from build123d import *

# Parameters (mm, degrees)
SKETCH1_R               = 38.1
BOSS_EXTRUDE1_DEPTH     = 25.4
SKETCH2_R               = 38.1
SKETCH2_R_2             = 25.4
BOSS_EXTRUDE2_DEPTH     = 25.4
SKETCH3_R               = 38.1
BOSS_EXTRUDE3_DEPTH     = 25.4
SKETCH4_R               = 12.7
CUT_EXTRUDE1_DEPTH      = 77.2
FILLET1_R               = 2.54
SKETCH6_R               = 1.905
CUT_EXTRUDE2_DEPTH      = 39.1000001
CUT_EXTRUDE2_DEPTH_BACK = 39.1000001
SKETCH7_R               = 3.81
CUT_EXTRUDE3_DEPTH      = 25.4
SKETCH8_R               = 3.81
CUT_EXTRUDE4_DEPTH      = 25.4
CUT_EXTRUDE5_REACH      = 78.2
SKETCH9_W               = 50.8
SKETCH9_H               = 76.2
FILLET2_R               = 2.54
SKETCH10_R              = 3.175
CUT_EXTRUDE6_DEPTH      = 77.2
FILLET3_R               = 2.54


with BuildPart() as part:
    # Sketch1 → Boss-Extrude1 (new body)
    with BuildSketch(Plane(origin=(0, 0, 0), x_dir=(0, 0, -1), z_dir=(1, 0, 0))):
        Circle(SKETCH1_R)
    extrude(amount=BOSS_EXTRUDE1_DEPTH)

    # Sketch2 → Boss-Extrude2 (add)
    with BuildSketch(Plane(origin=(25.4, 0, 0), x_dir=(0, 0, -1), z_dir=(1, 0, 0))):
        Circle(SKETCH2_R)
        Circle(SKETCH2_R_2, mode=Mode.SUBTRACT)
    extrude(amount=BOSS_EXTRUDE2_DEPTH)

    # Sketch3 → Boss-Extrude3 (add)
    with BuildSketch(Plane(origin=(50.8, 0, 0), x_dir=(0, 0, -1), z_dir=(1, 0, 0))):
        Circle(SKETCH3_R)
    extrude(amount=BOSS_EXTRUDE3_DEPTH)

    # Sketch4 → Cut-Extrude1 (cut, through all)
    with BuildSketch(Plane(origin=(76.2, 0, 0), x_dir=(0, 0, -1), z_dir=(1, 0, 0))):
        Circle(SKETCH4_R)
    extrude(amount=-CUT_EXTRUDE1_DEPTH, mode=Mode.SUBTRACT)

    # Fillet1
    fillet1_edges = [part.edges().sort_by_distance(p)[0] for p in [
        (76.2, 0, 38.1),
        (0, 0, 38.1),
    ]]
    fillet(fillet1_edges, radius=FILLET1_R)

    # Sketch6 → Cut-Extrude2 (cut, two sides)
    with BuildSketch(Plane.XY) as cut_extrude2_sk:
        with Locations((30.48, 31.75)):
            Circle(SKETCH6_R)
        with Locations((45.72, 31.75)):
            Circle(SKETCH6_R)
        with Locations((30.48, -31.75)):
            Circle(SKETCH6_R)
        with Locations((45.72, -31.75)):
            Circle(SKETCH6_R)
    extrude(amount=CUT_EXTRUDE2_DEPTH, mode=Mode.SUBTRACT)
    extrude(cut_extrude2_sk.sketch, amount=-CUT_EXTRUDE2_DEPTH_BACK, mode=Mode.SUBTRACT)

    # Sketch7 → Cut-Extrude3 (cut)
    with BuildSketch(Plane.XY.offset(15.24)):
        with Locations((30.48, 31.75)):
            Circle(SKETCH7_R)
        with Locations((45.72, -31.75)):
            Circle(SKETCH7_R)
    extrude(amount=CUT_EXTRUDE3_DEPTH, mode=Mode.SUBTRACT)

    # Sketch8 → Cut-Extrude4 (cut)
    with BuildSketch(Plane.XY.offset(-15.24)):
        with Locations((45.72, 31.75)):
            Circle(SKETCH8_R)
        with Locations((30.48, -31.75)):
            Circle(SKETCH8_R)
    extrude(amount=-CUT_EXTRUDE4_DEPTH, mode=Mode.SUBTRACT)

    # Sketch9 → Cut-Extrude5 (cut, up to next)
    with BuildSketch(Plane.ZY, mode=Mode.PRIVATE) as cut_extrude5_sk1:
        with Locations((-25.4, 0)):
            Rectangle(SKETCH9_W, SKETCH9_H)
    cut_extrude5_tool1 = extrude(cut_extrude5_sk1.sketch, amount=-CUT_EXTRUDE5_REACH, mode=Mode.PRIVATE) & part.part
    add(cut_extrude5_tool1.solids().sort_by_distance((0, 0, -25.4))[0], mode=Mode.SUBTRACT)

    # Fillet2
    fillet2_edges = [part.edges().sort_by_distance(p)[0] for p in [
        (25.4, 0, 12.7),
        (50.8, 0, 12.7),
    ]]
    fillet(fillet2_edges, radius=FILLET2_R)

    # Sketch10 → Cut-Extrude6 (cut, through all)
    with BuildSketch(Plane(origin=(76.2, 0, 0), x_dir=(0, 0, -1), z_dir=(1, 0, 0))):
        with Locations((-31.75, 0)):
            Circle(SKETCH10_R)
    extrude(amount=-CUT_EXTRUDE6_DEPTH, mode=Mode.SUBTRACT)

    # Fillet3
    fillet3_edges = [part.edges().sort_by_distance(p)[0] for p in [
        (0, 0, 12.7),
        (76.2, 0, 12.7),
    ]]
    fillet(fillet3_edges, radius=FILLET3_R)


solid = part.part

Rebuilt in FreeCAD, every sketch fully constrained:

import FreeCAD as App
import Part
import Sketcher
from FreeCAD import Vector
Q = App.Units.Quantity


def edges_at(feature, points):
    """Names of the edges that pass closest to the given points."""
    edges = feature.Shape.Edges
    near = lambda p: min(range(len(edges)), key=lambda i: edges[i].distToShape(Part.Vertex(*p))[0])
    return sorted({f"Edge{near(p) + 1}" for p in points})

doc = App.newDocument("Part")
body = doc.addObject("PartDesign::Body", "Body")

sketch1 = doc.addObject("Sketcher::SketchObject", "Sketch")
body.addObject(sketch1)
sketch1.AttachmentSupport = (doc.YZ_Plane, [""])
sketch1.MapMode = "FlatFace"
sketch1.addGeometry(Part.Circle(Vector(0, 0, 0), Vector(0, 0, 1), 38), False)
sketch1.addConstraint([
    Sketcher.Constraint("Coincident", 0, 3, -1, 1),
    Sketcher.Constraint("Diameter", 0, Q("3 in")),
])
pad1 = doc.addObject("PartDesign::Pad", "Pad")
body.addObject(pad1)
pad1.Profile = sketch1
pad1.Length = Q("1 in")

sketch2 = doc.addObject("Sketcher::SketchObject", "Sketch001")
body.addObject(sketch2)
sketch2.AttachmentSupport = (doc.YZ_Plane, [""])
sketch2.MapMode = "FlatFace"
sketch2.AttachmentOffset = App.Placement(Vector(0, 0, 1 * 25.4), App.Rotation())
sketch2.addGeometry([
    Part.Circle(Vector(0, 0, 0), Vector(0, 0, 1), 38),
    Part.Circle(Vector(0, 0, 0), Vector(0, 0, 1), 25),
], False)
sketch2.addConstraint([
    Sketcher.Constraint("Coincident", 0, 3, -1, 1),
    Sketcher.Constraint("Coincident", 1, 3, -1, 1),
    Sketcher.Constraint("Diameter", 0, Q("3 in")),
    Sketcher.Constraint("Diameter", 1, Q("2 in")),
])
pad2 = doc.addObject("PartDesign::Pad", "Pad001")
body.addObject(pad2)
pad2.Profile = sketch2
pad2.Length = Q("1 in")

sketch3 = doc.addObject("Sketcher::SketchObject", "Sketch002")
body.addObject(sketch3)
sketch3.AttachmentSupport = (doc.YZ_Plane, [""])
sketch3.MapMode = "FlatFace"
sketch3.AttachmentOffset = App.Placement(Vector(0, 0, 2 * 25.4), App.Rotation())
sketch3.addGeometry(Part.Circle(Vector(0, 0, 0), Vector(0, 0, 1), 38), False)
sketch3.addConstraint([
    Sketcher.Constraint("Coincident", 0, 3, -1, 1),
    Sketcher.Constraint("Diameter", 0, Q("3 in")),
])
pad3 = doc.addObject("PartDesign::Pad", "Pad002")
body.addObject(pad3)
pad3.Profile = sketch3
pad3.Length = Q("1 in")

sketch4 = doc.addObject("Sketcher::SketchObject", "Sketch003")
body.addObject(sketch4)
sketch4.AttachmentSupport = (doc.YZ_Plane, [""])
sketch4.MapMode = "FlatFace"
sketch4.AttachmentOffset = App.Placement(Vector(0, 0, 3 * 25.4), App.Rotation())
sketch4.addGeometry(Part.Circle(Vector(0, 0, 0), Vector(0, 0, 1), 13), False)
sketch4.addConstraint([
    Sketcher.Constraint("Coincident", 0, 3, -1, 1),
    Sketcher.Constraint("Diameter", 0, Q("1 in")),
])
pocket1 = doc.addObject("PartDesign::Pocket", "Pocket")
body.addObject(pocket1)
pocket1.Profile = sketch4
pocket1.Type = "ThroughAll"
doc.recompute()

fillet = doc.addObject("PartDesign::Fillet", "Fillet")
body.addObject(fillet)
fillet.Base = (pocket1, edges_at(pocket1, [(76.2, 0, 38.1), (0, 0, 38.1)]))
fillet.Radius = Q("0.1 in")

sketch5 = doc.addObject("Sketcher::SketchObject", "Sketch004")
body.addObject(sketch5)
sketch5.AttachmentSupport = (doc.XY_Plane, [""])
sketch5.MapMode = "FlatFace"
sketch5.addGeometry([
    Part.Circle(Vector(30.5, 31.8, 0), Vector(0, 0, 1), 1.9),
    Part.Circle(Vector(45.7, 31.8, 0), Vector(0, 0, 1), 1.9),
    Part.Circle(Vector(30.5, -31.8, 0), Vector(0, 0, 1), 1.9),
    Part.Circle(Vector(45.7, -31.8, 0), Vector(0, 0, 1), 1.9),
], False)
sketch5.addConstraint([
    Sketcher.Constraint("Equal", 0, 1),
    Sketcher.Constraint("Equal", 1, 2),
    Sketcher.Constraint("Equal", 2, 3),
    Sketcher.Constraint("Symmetric", 0, 3, 2, 3, -1),
    Sketcher.Constraint("Symmetric", 1, 3, 3, 3, -1),
    Sketcher.Constraint("Horizontal", 0, 3, 1, 3),
    Sketcher.Constraint("Diameter", 0, Q("0.15 in")),
    Sketcher.Constraint("DistanceX", -1, 1, 0, 3, Q("1.2 in")),
    Sketcher.Constraint("DistanceX", -1, 1, 1, 3, Q("1.8 in")),
    Sketcher.Constraint("DistanceY", 2, 3, 0, 3, Q("2.5 in")),
])
pocket2 = doc.addObject("PartDesign::Pocket", "Pocket001")
body.addObject(pocket2)
pocket2.Profile = sketch5
pocket2.Type = "ThroughAll"
pocket2.Midplane = True

sketch6 = doc.addObject("Sketcher::SketchObject", "Sketch005")
body.addObject(sketch6)
sketch6.AttachmentSupport = (doc.XY_Plane, [""])
sketch6.MapMode = "FlatFace"
sketch6.AttachmentOffset = App.Placement(Vector(0, 0, 0.6 * 25.4), App.Rotation())
sketch6.addGeometry([
    Part.Circle(Vector(30.5, 31.8, 0), Vector(0, 0, 1), 3.8),
    Part.Circle(Vector(45.7, -31.8, 0), Vector(0, 0, 1), 3.8),
], False)
sketch6.addConstraint([
    Sketcher.Constraint("Equal", 0, 1),
    Sketcher.Constraint("Diameter", 0, Q("0.3 in")),
    Sketcher.Constraint("DistanceX", -1, 1, 0, 3, Q("1.2 in")),
    Sketcher.Constraint("DistanceX", -1, 1, 1, 3, Q("1.8 in")),
    Sketcher.Constraint("DistanceY", 1, 3, 0, 3, Q("2.5 in")),
    Sketcher.Constraint("DistanceY", -1, 1, 0, 3, Q("1.25 in")),
])
pocket3 = doc.addObject("PartDesign::Pocket", "Pocket002")
body.addObject(pocket3)
pocket3.Profile = sketch6
pocket3.Length = Q("1 in")
pocket3.Reversed = True

sketch7 = doc.addObject("Sketcher::SketchObject", "Sketch006")
body.addObject(sketch7)
sketch7.AttachmentSupport = (doc.XY_Plane, [""])
sketch7.MapMode = "FlatFace"
sketch7.AttachmentOffset = App.Placement(Vector(0, 0, -0.6 * 25.4), App.Rotation())
sketch7.addGeometry([
    Part.Circle(Vector(45.7, 31.8, 0), Vector(0, 0, 1), 3.8),
    Part.Circle(Vector(30.5, -31.8, 0), Vector(0, 0, 1), 3.8),
], False)
sketch7.addConstraint([
    Sketcher.Constraint("Equal", 0, 1),
    Sketcher.Constraint("Diameter", 0, Q("0.3 in")),
    Sketcher.Constraint("DistanceX", -1, 1, 0, 3, Q("1.8 in")),
    Sketcher.Constraint("DistanceX", -1, 1, 1, 3, Q("1.2 in")),
    Sketcher.Constraint("DistanceY", 1, 3, 0, 3, Q("2.5 in")),
    Sketcher.Constraint("DistanceY", -1, 1, 0, 3, Q("1.25 in")),
])
pocket4 = doc.addObject("PartDesign::Pocket", "Pocket003")
body.addObject(pocket4)
pocket4.Profile = sketch7
pocket4.Length = Q("1 in")

sketch8 = doc.addObject("Sketcher::SketchObject", "Sketch007")
body.addObject(sketch8)
sketch8.AttachmentSupport = (doc.YZ_Plane, [""])
sketch8.MapMode = "FlatFace"
sketch8.addGeometry([
    Part.LineSegment(Vector(38, -51, 0), Vector(-38, -51, 0)),
    Part.LineSegment(Vector(-38, -51, 0), Vector(-38, 0, 0)),
    Part.LineSegment(Vector(-38, 0, 0), Vector(38, 0, 0)),
    Part.LineSegment(Vector(38, 0, 0), Vector(38, -51, 0)),
], False)
sketch8.addConstraint([
    Sketcher.Constraint("Coincident", 0, 2, 1, 1),
    Sketcher.Constraint("Coincident", 1, 2, 2, 1),
    Sketcher.Constraint("Coincident", 2, 2, 3, 1),
    Sketcher.Constraint("Coincident", 3, 2, 0, 1),
    Sketcher.Constraint("Horizontal", 0),
    Sketcher.Constraint("Vertical", 1),
    Sketcher.Constraint("Horizontal", 2),
    Sketcher.Constraint("Vertical", 3),
    Sketcher.Constraint("Symmetric", 1, 2, 2, 2, -1, 1),
    Sketcher.Constraint("DistanceX", 0, 2, 0, 1, Q("3 in")),
    Sketcher.Constraint("DistanceY", 1, 1, 1, 2, Q("2 in")),
])
pocket5 = doc.addObject("PartDesign::Pocket", "Pocket004")
body.addObject(pocket5)
pocket5.Profile = sketch8
pocket5.Length = Q("3 in")
pocket5.Reversed = True
doc.recompute()

fillet2 = doc.addObject("PartDesign::Fillet", "Fillet001")
body.addObject(fillet2)
fillet2.Base = (pocket5, edges_at(pocket5, [(25.4, 0, 12.7), (50.8, 0, 12.7)]))
fillet2.Radius = Q("0.1 in")

sketch9 = doc.addObject("Sketcher::SketchObject", "Sketch008")
body.addObject(sketch9)
sketch9.AttachmentSupport = (doc.YZ_Plane, [""])
sketch9.MapMode = "FlatFace"
sketch9.AttachmentOffset = App.Placement(Vector(0, 0, 3 * 25.4), App.Rotation())
sketch9.addGeometry(Part.Circle(Vector(0, 31.8, 0), Vector(0, 0, 1), 3.2), False)
sketch9.addConstraint([
    Sketcher.Constraint("PointOnObject", 0, 3, -2),
    Sketcher.Constraint("Diameter", 0, Q("0.25 in")),
    Sketcher.Constraint("DistanceY", -1, 1, 0, 3, Q("1.25 in")),
])
pocket6 = doc.addObject("PartDesign::Pocket", "Pocket005")
body.addObject(pocket6)
pocket6.Profile = sketch9
pocket6.Type = "ThroughAll"
doc.recompute()

fillet3 = doc.addObject("PartDesign::Fillet", "Fillet002")
body.addObject(fillet3)
fillet3.Base = (pocket6, edges_at(pocket6, [(0, 0, 12.7), (76.2, 0, 12.7)]))
fillet3.Radius = Q("0.1 in")

doc.recompute()
